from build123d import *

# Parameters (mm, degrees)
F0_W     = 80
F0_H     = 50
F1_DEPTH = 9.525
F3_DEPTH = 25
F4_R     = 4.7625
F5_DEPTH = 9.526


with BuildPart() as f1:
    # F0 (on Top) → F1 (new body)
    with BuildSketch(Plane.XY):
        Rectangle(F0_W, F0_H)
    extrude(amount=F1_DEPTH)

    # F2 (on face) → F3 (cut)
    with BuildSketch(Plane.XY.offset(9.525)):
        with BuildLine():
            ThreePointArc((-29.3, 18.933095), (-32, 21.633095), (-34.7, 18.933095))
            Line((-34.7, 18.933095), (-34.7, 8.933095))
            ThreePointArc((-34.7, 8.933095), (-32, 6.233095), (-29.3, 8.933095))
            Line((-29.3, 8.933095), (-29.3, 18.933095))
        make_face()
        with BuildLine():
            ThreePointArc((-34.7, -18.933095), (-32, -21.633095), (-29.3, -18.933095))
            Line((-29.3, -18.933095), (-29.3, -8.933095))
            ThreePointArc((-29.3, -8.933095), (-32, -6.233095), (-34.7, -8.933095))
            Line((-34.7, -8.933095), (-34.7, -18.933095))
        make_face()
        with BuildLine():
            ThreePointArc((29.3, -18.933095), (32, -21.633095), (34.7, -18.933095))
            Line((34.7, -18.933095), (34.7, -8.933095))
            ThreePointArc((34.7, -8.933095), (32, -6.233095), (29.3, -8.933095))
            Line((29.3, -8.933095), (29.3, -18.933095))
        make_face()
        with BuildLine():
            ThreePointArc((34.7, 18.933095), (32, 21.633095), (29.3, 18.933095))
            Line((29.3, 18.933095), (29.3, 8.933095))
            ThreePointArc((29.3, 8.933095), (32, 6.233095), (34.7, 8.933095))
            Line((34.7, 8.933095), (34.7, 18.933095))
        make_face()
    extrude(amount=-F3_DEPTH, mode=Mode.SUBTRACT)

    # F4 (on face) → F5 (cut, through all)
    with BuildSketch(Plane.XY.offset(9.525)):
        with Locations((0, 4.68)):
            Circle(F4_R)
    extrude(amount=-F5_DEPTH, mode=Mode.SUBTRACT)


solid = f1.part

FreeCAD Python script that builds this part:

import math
import FreeCAD as App
import Part
import Sketcher

V = App.Vector
Q = App.Units.Quantity


def add_polygon(sketch, points):
    """Adds a closed chain of lines whose ends are joined by coincident constraints."""
    first, n = sketch.GeometryCount, len(points)
    for a, b in zip(points, points[1:] + points[:1]):
        sketch.addGeometry(Part.LineSegment(App.Vector(*a, 0), App.Vector(*b, 0)), False)
    for i in range(n):
        sketch.addConstraint(Sketcher.Constraint("Coincident", first + i, 2, first + (i + 1) % n, 1))

doc = App.newDocument("Part")
body = doc.addObject("PartDesign::Body", "Body")

sketch1 = doc.addObject("Sketcher::SketchObject", "Sketch")
body.addObject(sketch1)
sketch1.AttachmentSupport = (doc.XY_Plane, [""])
sketch1.MapMode = "FlatFace"
add_polygon(sketch1, [(-40, 25), (-40, -25), (40, -25), (40, 25)])
sketch1.addConstraint([
    Sketcher.Constraint("Vertical", 0),
    Sketcher.Constraint("Horizontal", 1),
    Sketcher.Constraint("Vertical", 2),
    Sketcher.Constraint("Horizontal", 3),
    Sketcher.Constraint("Symmetric", 0, 2, 2, 2, -1, 1),
    Sketcher.Constraint("DistanceX", 1, 1, 1, 2, Q("80 mm")),
    Sketcher.Constraint("DistanceY", 0, 2, 0, 1, Q("50 mm")),
])
pad1 = doc.addObject("PartDesign::Pad", "Pad")
body.addObject(pad1)
pad1.Profile = sketch1
pad1.Length = 9.525

sketch2 = doc.addObject("Sketcher::SketchObject", "Sketch001")
body.addObject(sketch2)
sketch2.AttachmentSupport = (doc.XY_Plane, [""])
sketch2.MapMode = "FlatFace"
sketch2.AttachmentOffset = App.Placement(V(0, 0, 9.525), App.Rotation())
sketch2.addGeometry([
    Part.ArcOfCircle(Part.Circle(V(-32, 18.933095, 0), V(0, 0, 1), 2.7), math.radians(0), math.radians(180)),
    Part.LineSegment(V(-34.7, 18.933095, 0), V(-34.7, 8.933095, 0)),
    Part.ArcOfCircle(Part.Circle(V(-32, 8.933095, 0), V(0, 0, 1), 2.7), math.radians(180), math.radians(360)),
    Part.LineSegment(V(-29.3, 8.933095, 0), V(-29.3, 18.933095, 0)),
    Part.ArcOfCircle(Part.Circle(V(-32, -18.933095, 0), V(0, 0, 1), 2.7), math.radians(180), math.radians(360)),
    Part.LineSegment(V(-29.3, -18.933095, 0), V(-29.3, -8.933095, 0)),
    Part.ArcOfCircle(Part.Circle(V(-32, -8.933095, 0), V(0, 0, 1), 2.7), math.radians(0), math.radians(180)),
    Part.LineSegment(V(-34.7, -8.933095, 0), V(-34.7, -18.933095, 0)),
    Part.ArcOfCircle(Part.Circle(V(32, -18.933095, 0), V(0, 0, 1), 2.7), math.radians(180), math.radians(360)),
    Part.LineSegment(V(34.7, -18.933095, 0), V(34.7, -8.933095, 0)),
    Part.ArcOfCircle(Part.Circle(V(32, -8.933095, 0), V(0, 0, 1), 2.7), math.radians(0), math.radians(180)),
    Part.LineSegment(V(29.3, -8.933095, 0), V(29.3, -18.933095, 0)),
    Part.ArcOfCircle(Part.Circle(V(32, 18.933095, 0), V(0, 0, 1), 2.7), math.radians(0), math.radians(180)),
    Part.LineSegment(V(29.3, 18.933095, 0), V(29.3, 8.933095, 0)),
    Part.ArcOfCircle(Part.Circle(V(32, 8.933095, 0), V(0, 0, 1), 2.7), math.radians(180), math.radians(360)),
    Part.LineSegment(V(34.7, 8.933095, 0), V(34.7, 18.933095, 0)),
], False)
sketch2.addConstraint([
    Sketcher.Constraint("Tangent", 0, 2, 1, 1),
    Sketcher.Constraint("Tangent", 1, 2, 2, 1),
    Sketcher.Constraint("Tangent", 2, 2, 3, 1),
    Sketcher.Constraint("Tangent", 3, 2, 0, 1),
    Sketcher.Constraint("Tangent", 4, 2, 5, 1),
    Sketcher.Constraint("Tangent", 5, 2, 6, 1),
    Sketcher.Constraint("Tangent", 6, 2, 7, 1),
    Sketcher.Constraint("Tangent", 7, 2, 4, 1),
    Sketcher.Constraint("Tangent", 8, 2, 9, 1),
    Sketcher.Constraint("Tangent", 9, 2, 10, 1),
    Sketcher.Constraint("Tangent", 10, 2, 11, 1),
    Sketcher.Constraint("Tangent", 11, 2, 8, 1),
    Sketcher.Constraint("Tangent", 12, 2, 13, 1),
    Sketcher.Constraint("Tangent", 13, 2, 14, 1),
    Sketcher.Constraint("Tangent", 14, 2, 15, 1),
    Sketcher.Constraint("Tangent", 15, 2, 12, 1),
    Sketcher.Constraint("Vertical", 1),
    Sketcher.Constraint("Vertical", 3),
    Sketcher.Constraint("Vertical", 5),
    Sketcher.Constraint("Vertical", 7),
    Sketcher.Constraint("Vertical", 9),
    Sketcher.Constraint("Vertical", 11),
    Sketcher.Constraint("Vertical", 13),
    Sketcher.Constraint("Vertical", 15),
    Sketcher.Constraint("Equal", 2, 4),
    Sketcher.Constraint("Equal", 6, 8),
    Sketcher.Constraint("Equal", 10, 12),
    Sketcher.Constraint("Symmetric", 0, 3, 8, 3, -1, 1),
    Sketcher.Constraint("Symmetric", 4, 3, 12, 3, -1, 1),
    Sketcher.Constraint("Symmetric", 4, 3, 8, 3, -2),
    Sketcher.Constraint("Horizontal", 6, 3, 10, 3),
    Sketcher.Constraint("Horizontal", 2, 3, 14, 3),
    Sketcher.Constraint("Equal", 3, 5),
    Sketcher.Constraint("Radius", 0, Q("2.7 mm")),
    Sketcher.Constraint("DistanceY", 1, 2, 1, 1, Q("10 mm")),
    Sketcher.Constraint("DistanceX", 0, 3, -1, 1, Q("32 mm")),
    Sketcher.Constraint("DistanceY", 4, 3, 2, 3, Q("27.86619 mm")),
])
pocket1 = doc.addObject("PartDesign::Pocket", "Pocket")
body.addObject(pocket1)
pocket1.Profile = sketch2
pocket1.Length = 25

sketch3 = doc.addObject("Sketcher::SketchObject", "Sketch002")
body.addObject(sketch3)
sketch3.AttachmentSupport = (doc.XY_Plane, [""])
sketch3.MapMode = "FlatFace"
sketch3.AttachmentOffset = App.Placement(V(0, 0, 9.525), App.Rotation())
sketch3.addGeometry(Part.Circle(V(0, 4.68, 0), V(0, 0, 1), 4.7625), False)
sketch3.addConstraint([
    Sketcher.Constraint("PointOnObject", 0, 3, -2),
    Sketcher.Constraint("Diameter", 0, Q("9.525 mm")),
    Sketcher.Constraint("DistanceY", -1, 1, 0, 3, Q("4.68 mm")),
])
pocket2 = doc.addObject("PartDesign::Pocket", "Pocket001")
body.addObject(pocket2)
pocket2.Profile = sketch3
pocket2.Type = "ThroughAll"

doc.recompute()
